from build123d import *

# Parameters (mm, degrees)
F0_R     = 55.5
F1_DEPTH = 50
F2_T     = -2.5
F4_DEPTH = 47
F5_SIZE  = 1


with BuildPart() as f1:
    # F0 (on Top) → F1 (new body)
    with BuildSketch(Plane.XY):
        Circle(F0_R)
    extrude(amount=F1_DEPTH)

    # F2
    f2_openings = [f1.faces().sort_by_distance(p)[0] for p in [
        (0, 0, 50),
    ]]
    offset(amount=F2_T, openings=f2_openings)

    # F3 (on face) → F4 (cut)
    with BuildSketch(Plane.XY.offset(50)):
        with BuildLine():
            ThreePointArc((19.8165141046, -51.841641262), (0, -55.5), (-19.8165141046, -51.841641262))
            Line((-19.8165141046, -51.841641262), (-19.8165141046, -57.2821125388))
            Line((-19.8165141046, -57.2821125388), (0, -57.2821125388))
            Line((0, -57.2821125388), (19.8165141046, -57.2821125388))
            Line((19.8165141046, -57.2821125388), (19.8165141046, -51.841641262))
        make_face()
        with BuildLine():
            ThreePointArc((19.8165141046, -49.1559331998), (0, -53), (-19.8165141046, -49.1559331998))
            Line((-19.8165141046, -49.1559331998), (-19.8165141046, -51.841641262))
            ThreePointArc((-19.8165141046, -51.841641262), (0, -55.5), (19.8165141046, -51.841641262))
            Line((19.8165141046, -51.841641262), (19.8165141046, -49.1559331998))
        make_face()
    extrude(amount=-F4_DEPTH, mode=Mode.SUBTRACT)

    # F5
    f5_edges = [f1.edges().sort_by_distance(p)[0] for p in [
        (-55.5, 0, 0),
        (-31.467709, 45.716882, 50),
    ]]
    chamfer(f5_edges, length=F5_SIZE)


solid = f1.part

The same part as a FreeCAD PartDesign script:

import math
import FreeCAD as App
import Part
import Sketcher

V = App.Vector


def edges_at(feature, points):
    """Names of the edges that pass closest to the given points."""
    edges = feature.Shape.Edges
    near = lambda p: min(range(len(edges)), key=lambda i: edges[i].distToShape(Part.Vertex(*p))[0])
    return sorted({f"Edge{near(p) + 1}" for p in points})


def faces_at(feature, points):
    """Names of the faces that lie closest to the given points."""
    faces = feature.Shape.Faces
    near = lambda p: min(range(len(faces)), key=lambda i: faces[i].distToShape(Part.Vertex(*p))[0])
    return sorted({f"Face{near(p) + 1}" for p in points})

doc = App.newDocument("Part")
body = doc.addObject("PartDesign::Body", "Body")

# Sketch on XY plane
sketch1 = body.newObject("Sketcher::SketchObject", "Sketch")
sketch1.AttachmentSupport = (doc.getObject("XY_Plane"), [""])
sketch1.MapMode = "FlatFace"
sketch1.addGeometry(Part.Circle(V(0, 0, 0), V(0, 0, 1), 56), False)
sketch1.addConstraint([
    Sketcher.Constraint("Coincident", 0, 3, -1, 1),
    Sketcher.Constraint("Diameter", 0, 111.0),
])
pad1 = body.newObject("PartDesign::Pad", "Pad")
pad1.Profile = sketch1
pad1.Length = 50
doc.recompute()

thickness = body.newObject("PartDesign::Thickness", "Thickness")
thickness.Base = (pad1, faces_at(pad1, [(0, 0, 50)]))
thickness.Value = 2.5
thickness.Reversed = True
thickness.Join = "Arc"

# Sketch on XY plane
sketch2 = body.newObject("Sketcher::SketchObject", "Sketch001")
sketch2.AttachmentSupport = (doc.getObject("XY_Plane"), [""])
sketch2.MapMode = "FlatFace"
sketch2.AttachmentOffset = App.Placement(V(0, 0, 50), App.Rotation())
sketch2.addGeometry([
    Part.LineSegment(V(-20, -57, 0), V(20, -57, 0)),
    Part.LineSegment(V(20, -57, 0), V(20, -49, 0)),
    Part.ArcOfCircle(Part.Circle(V(0, 0, 0), V(0, 0, 1), 53), math.radians(-112), math.radians(-68)),
    Part.LineSegment(V(-20, -49, 0), V(-20, -57, 0)),
], False)
sketch2.addConstraint([
    Sketcher.Constraint("Coincident", 0, 2, 1, 1),
    Sketcher.Constraint("Coincident", 1, 2, 2, 2),
    Sketcher.Constraint("Coincident", 2, 1, 3, 1),
    Sketcher.Constraint("Coincident", 3, 2, 0, 1),
    Sketcher.Constraint("Horizontal", 0),
    Sketcher.Constraint("Vertical", 1),
    Sketcher.Constraint("Vertical", 3),
    Sketcher.Constraint("Coincident", 2, 3, -1, 1),
    Sketcher.Constraint("Horizontal", 1, 2, 2, 1),
    Sketcher.Constraint("Radius", 2, 53.0),
    Sketcher.Constraint("DistanceX", 0, 1, 0, 2, 39.633028),
    Sketcher.Constraint("DistanceY", 1, 1, 1, 2, 8.126179),
])
pocket1 = body.newObject("PartDesign::Pocket", "Pocket")
pocket1.Profile = sketch2
pocket1.Length = 47
doc.recompute()

chamfer = body.newObject("PartDesign::Chamfer", "Chamfer")
chamfer.Base = (pocket1, edges_at(pocket1, [(-55.5, 0, 0), (-31.468, 45.717, 50)]))
chamfer.Size = 1

doc.recompute()
